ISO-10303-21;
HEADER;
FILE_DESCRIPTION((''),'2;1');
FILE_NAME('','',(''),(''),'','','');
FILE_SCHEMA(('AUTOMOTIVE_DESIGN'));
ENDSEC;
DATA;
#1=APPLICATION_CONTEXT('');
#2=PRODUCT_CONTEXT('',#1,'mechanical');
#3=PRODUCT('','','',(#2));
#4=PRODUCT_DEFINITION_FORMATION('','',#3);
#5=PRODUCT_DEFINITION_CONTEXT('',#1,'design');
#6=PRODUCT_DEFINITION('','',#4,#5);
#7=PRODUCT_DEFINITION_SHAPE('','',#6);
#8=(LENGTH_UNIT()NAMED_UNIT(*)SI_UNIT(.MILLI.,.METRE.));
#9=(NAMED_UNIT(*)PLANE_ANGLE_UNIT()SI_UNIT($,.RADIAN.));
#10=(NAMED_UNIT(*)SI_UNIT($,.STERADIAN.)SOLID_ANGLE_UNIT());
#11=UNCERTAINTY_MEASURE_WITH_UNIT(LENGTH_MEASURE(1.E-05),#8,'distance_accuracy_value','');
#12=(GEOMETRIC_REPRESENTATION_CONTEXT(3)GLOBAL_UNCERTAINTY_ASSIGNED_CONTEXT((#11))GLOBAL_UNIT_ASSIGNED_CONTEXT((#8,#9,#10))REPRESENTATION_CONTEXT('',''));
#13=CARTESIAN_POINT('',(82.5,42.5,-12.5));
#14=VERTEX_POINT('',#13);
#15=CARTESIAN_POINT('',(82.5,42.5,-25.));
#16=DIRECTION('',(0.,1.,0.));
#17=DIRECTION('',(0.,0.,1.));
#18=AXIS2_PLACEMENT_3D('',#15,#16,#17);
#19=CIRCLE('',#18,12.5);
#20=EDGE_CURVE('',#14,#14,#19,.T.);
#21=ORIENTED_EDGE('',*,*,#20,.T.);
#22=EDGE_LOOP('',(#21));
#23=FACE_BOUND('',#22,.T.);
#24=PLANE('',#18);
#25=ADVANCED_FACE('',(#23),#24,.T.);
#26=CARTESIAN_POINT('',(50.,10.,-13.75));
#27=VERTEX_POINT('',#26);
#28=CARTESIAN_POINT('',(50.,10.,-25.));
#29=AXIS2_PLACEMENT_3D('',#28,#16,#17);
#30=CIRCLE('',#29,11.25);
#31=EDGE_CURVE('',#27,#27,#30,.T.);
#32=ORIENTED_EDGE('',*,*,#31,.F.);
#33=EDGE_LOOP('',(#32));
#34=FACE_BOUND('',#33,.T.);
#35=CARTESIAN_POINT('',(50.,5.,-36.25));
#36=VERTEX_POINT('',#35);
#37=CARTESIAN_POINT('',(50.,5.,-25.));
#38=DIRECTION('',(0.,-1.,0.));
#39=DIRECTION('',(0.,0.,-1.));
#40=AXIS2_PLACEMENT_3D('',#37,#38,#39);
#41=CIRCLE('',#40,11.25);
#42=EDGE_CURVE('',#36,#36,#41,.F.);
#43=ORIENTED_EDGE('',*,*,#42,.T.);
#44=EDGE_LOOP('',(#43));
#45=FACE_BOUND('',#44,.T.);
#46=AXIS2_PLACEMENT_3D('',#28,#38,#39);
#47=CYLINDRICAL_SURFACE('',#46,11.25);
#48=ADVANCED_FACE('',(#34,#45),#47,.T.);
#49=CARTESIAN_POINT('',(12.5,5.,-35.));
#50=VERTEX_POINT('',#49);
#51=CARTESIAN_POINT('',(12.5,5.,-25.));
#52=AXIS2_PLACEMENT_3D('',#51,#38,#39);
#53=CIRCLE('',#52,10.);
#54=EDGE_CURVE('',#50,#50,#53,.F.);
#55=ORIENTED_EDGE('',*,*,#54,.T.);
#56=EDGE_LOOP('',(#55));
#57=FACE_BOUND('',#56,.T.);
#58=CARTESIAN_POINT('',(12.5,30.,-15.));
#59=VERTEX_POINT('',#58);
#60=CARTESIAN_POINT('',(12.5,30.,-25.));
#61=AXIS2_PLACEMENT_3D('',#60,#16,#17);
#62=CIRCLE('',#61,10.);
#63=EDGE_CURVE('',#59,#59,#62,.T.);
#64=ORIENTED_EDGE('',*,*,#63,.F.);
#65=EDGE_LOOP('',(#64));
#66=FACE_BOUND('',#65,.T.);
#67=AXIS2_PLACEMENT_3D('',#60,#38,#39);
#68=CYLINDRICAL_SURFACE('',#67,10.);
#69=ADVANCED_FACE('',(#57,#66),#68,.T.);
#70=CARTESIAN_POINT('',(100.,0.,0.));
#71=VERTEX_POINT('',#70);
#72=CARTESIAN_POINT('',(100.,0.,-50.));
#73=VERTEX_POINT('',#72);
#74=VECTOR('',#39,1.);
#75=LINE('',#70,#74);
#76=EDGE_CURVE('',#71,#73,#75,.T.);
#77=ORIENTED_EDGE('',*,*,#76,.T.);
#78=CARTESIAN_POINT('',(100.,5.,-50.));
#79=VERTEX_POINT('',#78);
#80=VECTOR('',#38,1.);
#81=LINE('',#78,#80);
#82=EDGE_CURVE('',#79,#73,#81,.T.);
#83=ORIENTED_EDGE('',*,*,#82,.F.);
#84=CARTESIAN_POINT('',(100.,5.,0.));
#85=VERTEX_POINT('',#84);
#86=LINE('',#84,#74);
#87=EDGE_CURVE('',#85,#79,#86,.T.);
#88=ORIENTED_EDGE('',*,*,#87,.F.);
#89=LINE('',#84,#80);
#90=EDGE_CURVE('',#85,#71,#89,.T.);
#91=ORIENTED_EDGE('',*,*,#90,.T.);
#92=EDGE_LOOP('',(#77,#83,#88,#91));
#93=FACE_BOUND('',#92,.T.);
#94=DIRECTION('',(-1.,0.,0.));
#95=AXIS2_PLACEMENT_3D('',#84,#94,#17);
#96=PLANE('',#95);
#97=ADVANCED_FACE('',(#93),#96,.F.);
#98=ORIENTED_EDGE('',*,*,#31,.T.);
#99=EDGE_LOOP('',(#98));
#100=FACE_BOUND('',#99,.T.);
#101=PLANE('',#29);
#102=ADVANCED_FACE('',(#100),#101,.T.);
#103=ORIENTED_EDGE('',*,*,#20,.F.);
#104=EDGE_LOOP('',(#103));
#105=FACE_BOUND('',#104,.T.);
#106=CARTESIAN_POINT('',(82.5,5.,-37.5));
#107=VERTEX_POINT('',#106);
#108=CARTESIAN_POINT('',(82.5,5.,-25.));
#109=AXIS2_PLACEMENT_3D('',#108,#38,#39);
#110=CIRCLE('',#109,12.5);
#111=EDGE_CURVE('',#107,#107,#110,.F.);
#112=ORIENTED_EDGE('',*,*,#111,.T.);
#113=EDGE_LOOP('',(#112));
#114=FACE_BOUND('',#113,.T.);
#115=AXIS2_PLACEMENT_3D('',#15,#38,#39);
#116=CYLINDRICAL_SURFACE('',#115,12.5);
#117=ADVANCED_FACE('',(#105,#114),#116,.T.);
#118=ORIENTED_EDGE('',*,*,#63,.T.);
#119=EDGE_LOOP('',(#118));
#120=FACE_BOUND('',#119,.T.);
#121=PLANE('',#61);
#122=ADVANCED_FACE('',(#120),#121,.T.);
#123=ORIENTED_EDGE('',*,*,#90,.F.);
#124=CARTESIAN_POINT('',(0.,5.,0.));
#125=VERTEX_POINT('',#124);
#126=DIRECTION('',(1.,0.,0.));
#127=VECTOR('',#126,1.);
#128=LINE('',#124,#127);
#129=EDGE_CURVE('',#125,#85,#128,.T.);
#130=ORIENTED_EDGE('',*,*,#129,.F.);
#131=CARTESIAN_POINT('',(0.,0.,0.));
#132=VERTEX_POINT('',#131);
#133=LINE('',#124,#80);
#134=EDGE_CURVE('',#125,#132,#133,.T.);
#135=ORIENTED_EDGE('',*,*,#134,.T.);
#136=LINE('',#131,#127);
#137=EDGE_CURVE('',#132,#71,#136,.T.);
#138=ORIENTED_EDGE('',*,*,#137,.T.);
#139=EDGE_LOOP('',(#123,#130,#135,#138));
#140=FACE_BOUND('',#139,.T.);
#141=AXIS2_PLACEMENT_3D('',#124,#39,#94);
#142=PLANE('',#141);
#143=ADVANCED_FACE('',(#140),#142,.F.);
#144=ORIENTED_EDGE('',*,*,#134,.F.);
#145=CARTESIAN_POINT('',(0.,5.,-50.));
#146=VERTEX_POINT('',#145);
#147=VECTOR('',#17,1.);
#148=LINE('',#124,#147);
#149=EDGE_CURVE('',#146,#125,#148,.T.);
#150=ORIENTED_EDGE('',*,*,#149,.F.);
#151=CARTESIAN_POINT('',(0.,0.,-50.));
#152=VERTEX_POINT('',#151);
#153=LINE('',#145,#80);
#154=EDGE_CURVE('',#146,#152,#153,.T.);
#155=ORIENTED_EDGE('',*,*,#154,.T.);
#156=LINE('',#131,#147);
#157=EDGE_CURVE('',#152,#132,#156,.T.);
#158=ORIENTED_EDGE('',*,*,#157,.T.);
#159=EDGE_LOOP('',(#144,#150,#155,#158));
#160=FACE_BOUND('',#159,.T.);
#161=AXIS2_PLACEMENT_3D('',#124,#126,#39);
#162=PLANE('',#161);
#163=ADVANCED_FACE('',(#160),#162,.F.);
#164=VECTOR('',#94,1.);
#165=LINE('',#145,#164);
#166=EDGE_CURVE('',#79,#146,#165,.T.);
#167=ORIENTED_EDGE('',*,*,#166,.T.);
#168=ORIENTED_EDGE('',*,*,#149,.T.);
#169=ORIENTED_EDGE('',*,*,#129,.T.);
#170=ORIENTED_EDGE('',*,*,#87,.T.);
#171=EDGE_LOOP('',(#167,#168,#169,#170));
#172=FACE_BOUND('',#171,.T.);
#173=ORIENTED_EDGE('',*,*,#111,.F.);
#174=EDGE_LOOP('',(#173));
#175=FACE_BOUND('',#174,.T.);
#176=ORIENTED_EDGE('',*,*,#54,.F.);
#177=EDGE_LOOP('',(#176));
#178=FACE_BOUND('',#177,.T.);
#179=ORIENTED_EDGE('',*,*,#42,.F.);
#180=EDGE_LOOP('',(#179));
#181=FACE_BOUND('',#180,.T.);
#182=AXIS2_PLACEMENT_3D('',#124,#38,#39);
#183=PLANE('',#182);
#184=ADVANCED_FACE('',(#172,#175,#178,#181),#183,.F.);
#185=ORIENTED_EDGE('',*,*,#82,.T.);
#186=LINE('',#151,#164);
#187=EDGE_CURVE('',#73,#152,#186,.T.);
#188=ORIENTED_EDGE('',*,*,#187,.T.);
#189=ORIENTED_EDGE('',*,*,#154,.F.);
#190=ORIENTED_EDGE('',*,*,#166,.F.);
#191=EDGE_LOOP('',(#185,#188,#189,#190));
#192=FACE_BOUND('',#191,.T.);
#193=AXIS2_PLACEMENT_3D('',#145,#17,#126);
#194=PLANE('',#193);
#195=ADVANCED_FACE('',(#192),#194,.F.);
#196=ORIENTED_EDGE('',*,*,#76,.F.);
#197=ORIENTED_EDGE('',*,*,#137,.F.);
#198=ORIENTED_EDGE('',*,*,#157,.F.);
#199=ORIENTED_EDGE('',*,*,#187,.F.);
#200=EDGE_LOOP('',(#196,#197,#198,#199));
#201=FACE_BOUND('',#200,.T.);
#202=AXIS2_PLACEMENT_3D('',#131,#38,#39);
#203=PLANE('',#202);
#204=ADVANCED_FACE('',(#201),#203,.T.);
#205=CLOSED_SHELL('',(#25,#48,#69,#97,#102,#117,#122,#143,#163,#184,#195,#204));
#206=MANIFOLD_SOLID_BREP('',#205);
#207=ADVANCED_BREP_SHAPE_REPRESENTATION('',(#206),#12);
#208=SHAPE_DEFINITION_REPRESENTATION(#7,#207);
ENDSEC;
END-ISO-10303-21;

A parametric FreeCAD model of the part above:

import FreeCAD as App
import Part
import Sketcher

V = App.Vector

doc = App.newDocument("Part")
params = doc.addObject("Spreadsheet::Sheet", "Params")
for row, (alias, value) in enumerate([
    ("sketch1_width", "100 mm"),
    ("sketch1_height", "50 mm"),
    ("pad1_length", "5 mm"),
    ("sketch2_diameter", "20 mm"),
    ("pad2_length", "25 mm"),
    ("sketch3_diameter", "22.5 mm"),
    ("pad3_length", "5 mm"),
    ("sketch4_diameter", "25 mm"),
    ("pad4_length", "37.5 mm"),
], start=1):
    params.set(f"A{row}", alias)
    params.set(f"B{row}", "=" + value)
    params.setAlias(f"B{row}", alias)

body = doc.addObject("PartDesign::Body", "Body")

# Sketch on XZ plane
sketch1 = body.newObject("Sketcher::SketchObject", "Sketch")
sketch1.AttachmentSupport = (doc.getObject("XZ_Plane"), [""])
sketch1.MapMode = "FlatFace"
sketch1.addGeometry(Part.LineSegment(V(0, -50, 0), V(0, 0, 0)), False)
sketch1.addGeometry(Part.LineSegment(V(0, 0, 0), V(100, 0, 0)), False)
sketch1.addGeometry(Part.LineSegment(V(100, 0, 0), V(100, -50, 0)), False)
sketch1.addGeometry(Part.LineSegment(V(100, -50, 0), V(0, -50, 0)), False)
sketch1.addConstraint(Sketcher.Constraint("Coincident", 0, 2, 1, 1))
sketch1.addConstraint(Sketcher.Constraint("Coincident", 1, 2, 2, 1))
sketch1.addConstraint(Sketcher.Constraint("Coincident", 2, 2, 3, 1))
sketch1.addConstraint(Sketcher.Constraint("Coincident", 3, 2, 0, 1))
sketch1.addConstraint(Sketcher.Constraint("Vertical", 0))
sketch1.addConstraint(Sketcher.Constraint("Horizontal", 1))
sketch1.addConstraint(Sketcher.Constraint("Vertical", 2))
sketch1.addConstraint(Sketcher.Constraint("Horizontal", 3))
sketch1.addConstraint(Sketcher.Constraint("Coincident", 0, 2, -1, 1))
sketch1.addConstraint(Sketcher.Constraint("DistanceX", 1, 1, 1, 2, 100.0))
sketch1.addConstraint(Sketcher.Constraint("DistanceY", 0, 1, 0, 2, 50.0))
sketch1.setExpression("Constraints[9]", "Params.sketch1_width")
sketch1.setExpression("Constraints[10]", "Params.sketch1_height")
pad1 = body.newObject("PartDesign::Pad", "Pad")
pad1.Profile = sketch1
pad1.setExpression("Length", "Params.pad1_length")
pad1.Reversed = True

# Sketch on XZ plane
sketch2 = body.newObject("Sketcher::SketchObject", "Sketch001")
sketch2.AttachmentSupport = (doc.getObject("XZ_Plane"), [""])
sketch2.MapMode = "FlatFace"
sketch2.AttachmentOffset = App.Placement(V(0, 0, -5), App.Rotation())
sketch2.addGeometry(Part.Circle(V(12.5, -25, 0), V(0, 0, 1), 10), False)
sketch2.addConstraint(Sketcher.Constraint("Diameter", 0, 20.0))
sketch2.addConstraint(Sketcher.Constraint("DistanceY", 0, 3, -1, 1, 25.0))
sketch2.addConstraint(Sketcher.Constraint("DistanceX", -1, 1, 0, 3, 12.5))
sketch2.setExpression("Constraints[0]", "Params.sketch2_diameter")
pad2 = body.newObject("PartDesign::Pad", "Pad001")
pad2.Profile = sketch2
pad2.setExpression("Length", "Params.pad2_length")
pad2.Reversed = True

# Sketch on XZ plane
sketch3 = body.newObject("Sketcher::SketchObject", "Sketch002")
sketch3.AttachmentSupport = (doc.getObject("XZ_Plane"), [""])
sketch3.MapMode = "FlatFace"
sketch3.AttachmentOffset = App.Placement(V(0, 0, -5), App.Rotation())
sketch3.addGeometry(Part.Circle(V(50, -25, 0), V(0, 0, 1), 11.25), False)
sketch3.addConstraint(Sketcher.Constraint("Diameter", 0, 22.5))
sketch3.addConstraint(Sketcher.Constraint("DistanceX", -1, 1, 0, 3, 50.0))
sketch3.addConstraint(Sketcher.Constraint("DistanceY", 0, 3, -1, 1, 25.0))
sketch3.setExpression("Constraints[0]", "Params.sketch3_diameter")
pad3 = body.newObject("PartDesign::Pad", "Pad002")
pad3.Profile = sketch3
pad3.setExpression("Length", "Params.pad3_length")
pad3.Reversed = True

# Sketch on XZ plane
sketch4 = body.newObject("Sketcher::SketchObject", "Sketch003")
sketch4.AttachmentSupport = (doc.getObject("XZ_Plane"), [""])
sketch4.MapMode = "FlatFace"
sketch4.AttachmentOffset = App.Placement(V(0, 0, -5), App.Rotation())
sketch4.addGeometry(Part.Circle(V(82.5, -25, 0), V(0, 0, 1), 12.5), False)
sketch4.addConstraint(Sketcher.Constraint("Diameter", 0, 25.0))
sketch4.addConstraint(Sketcher.Constraint("DistanceY", 0, 3, -1, 1, 25.0))
sketch4.addConstraint(Sketcher.Constraint("DistanceX", -1, 1, 0, 3, 82.5))
sketch4.setExpression("Constraints[0]", "Params.sketch4_diameter")
pad4 = body.newObject("PartDesign::Pad", "Pad003")
pad4.Profile = sketch4
pad4.setExpression("Length", "Params.pad4_length")
pad4.Reversed = True

doc.recompute()
